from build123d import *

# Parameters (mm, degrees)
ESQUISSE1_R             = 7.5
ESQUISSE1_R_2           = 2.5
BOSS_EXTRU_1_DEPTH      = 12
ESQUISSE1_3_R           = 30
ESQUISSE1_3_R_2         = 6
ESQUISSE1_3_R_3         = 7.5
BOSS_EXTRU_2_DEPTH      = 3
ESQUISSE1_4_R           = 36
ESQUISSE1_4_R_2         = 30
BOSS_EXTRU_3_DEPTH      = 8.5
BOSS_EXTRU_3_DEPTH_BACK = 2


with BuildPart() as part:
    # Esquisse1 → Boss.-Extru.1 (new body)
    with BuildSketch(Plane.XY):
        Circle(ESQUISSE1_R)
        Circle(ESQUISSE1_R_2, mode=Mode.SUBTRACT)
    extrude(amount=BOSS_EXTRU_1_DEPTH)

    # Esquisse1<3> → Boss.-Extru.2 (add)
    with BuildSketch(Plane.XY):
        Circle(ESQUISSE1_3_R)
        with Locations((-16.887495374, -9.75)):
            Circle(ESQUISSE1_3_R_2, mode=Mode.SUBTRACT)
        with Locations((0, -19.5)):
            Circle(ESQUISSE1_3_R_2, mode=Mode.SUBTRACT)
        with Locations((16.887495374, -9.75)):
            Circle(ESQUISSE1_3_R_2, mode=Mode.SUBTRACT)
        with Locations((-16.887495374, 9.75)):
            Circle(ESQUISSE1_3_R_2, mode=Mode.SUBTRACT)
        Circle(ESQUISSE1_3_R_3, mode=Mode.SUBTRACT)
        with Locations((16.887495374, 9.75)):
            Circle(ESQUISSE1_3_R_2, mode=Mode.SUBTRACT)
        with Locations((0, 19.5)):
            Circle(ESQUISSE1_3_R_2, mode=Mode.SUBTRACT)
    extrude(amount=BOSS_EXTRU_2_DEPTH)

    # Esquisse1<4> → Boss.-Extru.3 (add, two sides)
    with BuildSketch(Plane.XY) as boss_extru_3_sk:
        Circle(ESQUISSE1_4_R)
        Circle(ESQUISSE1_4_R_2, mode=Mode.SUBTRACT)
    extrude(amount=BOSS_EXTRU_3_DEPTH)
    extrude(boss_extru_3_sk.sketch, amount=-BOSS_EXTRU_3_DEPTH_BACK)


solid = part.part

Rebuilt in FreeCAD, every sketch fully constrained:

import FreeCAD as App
import Part
import Sketcher

doc = App.newDocument("Part")
body = doc.addObject("PartDesign::Body", "Body")

sketch1 = body.newObject("Sketcher::SketchObject", "Sketch")
sketch1.AttachmentSupport = (doc.getObject("XY_Plane"), [""])
sketch1.MapMode = "FlatFace"
sketch1.addGeometry(Part.Circle(App.Vector(0, 0, 0), App.Vector(0, 0, 1), 7.5), False)
sketch1.addGeometry(Part.Circle(App.Vector(0, 0, 0), App.Vector(0, 0, 1), 2.5), False)
sketch1.addConstraint(Sketcher.Constraint("Coincident", 0, 3, -1, 1))
sketch1.addConstraint(Sketcher.Constraint("Coincident", 1, 3, -1, 1))
sketch1.addConstraint(Sketcher.Constraint("Diameter", 0, 15.0))
sketch1.addConstraint(Sketcher.Constraint("Diameter", 1, 5.0))
pad1 = body.newObject("PartDesign::Pad", "Pad")
pad1.Profile = sketch1
pad1.Length = 12

sketch2 = body.newObject("Sketcher::SketchObject", "Sketch001")
sketch2.AttachmentSupport = (doc.getObject("XY_Plane"), [""])
sketch2.MapMode = "FlatFace"
sketch2.addGeometry(Part.Circle(App.Vector(0, 0, 0), App.Vector(0, 0, 1), 30), False)
sketch2.addGeometry(Part.Circle(App.Vector(-17, -10, 0), App.Vector(0, 0, 1), 6), False)
sketch2.addGeometry(Part.Circle(App.Vector(0, -20, 0), App.Vector(0, 0, 1), 6), False)
sketch2.addGeometry(Part.Circle(App.Vector(17, -10, 0), App.Vector(0, 0, 1), 6), False)
sketch2.addGeometry(Part.Circle(App.Vector(-17, 10, 0), App.Vector(0, 0, 1), 6), False)
sketch2.addGeometry(Part.Circle(App.Vector(0, 0, 0), App.Vector(0, 0, 1), 8), False)
sketch2.addGeometry(Part.Circle(App.Vector(17, 10, 0), App.Vector(0, 0, 1), 6), False)
sketch2.addGeometry(Part.Circle(App.Vector(0, 20, 0), App.Vector(0, 0, 1), 6), False)
sketch2.addConstraint(Sketcher.Constraint("Coincident", 0, 3, -1, 1))
sketch2.addConstraint(Sketcher.Constraint("Coincident", 5, 3, -1, 1))
sketch2.addConstraint(Sketcher.Constraint("Equal", 1, 2))
sketch2.addConstraint(Sketcher.Constraint("Equal", 2, 3))
sketch2.addConstraint(Sketcher.Constraint("Equal", 3, 4))
sketch2.addConstraint(Sketcher.Constraint("Equal", 4, 6))
sketch2.addConstraint(Sketcher.Constraint("Equal", 6, 7))
sketch2.addConstraint(Sketcher.Constraint("Symmetric", 3, 3, 4, 3, -1, 1))
sketch2.addConstraint(Sketcher.Constraint("Symmetric", 1, 3, 6, 3, -1, 1))
sketch2.addConstraint(Sketcher.Constraint("Symmetric", 2, 3, 7, 3, -1, 1))
sketch2.addConstraint(Sketcher.Constraint("Symmetric", 1, 3, 3, 3, -2))
sketch2.addConstraint(Sketcher.Constraint("PointOnObject", 2, 3, -2))
sketch2.addConstraint(Sketcher.Constraint("Diameter", 0, 60.0))
sketch2.addConstraint(Sketcher.Constraint("Diameter", 1, 12.0))
sketch2.addConstraint(Sketcher.Constraint("Diameter", 5, 15.0))
sketch2.addConstraint(Sketcher.Constraint("DistanceY", 2, 3, -1, 1, 19.5))
sketch2.addConstraint(Sketcher.Constraint("DistanceY", 1, 3, 4, 3, 19.5))
sketch2.addConstraint(Sketcher.Constraint("DistanceX", 1, 3, 3, 3, 33.774991))
pad2 = body.newObject("PartDesign::Pad", "Pad001")
pad2.Profile = sketch2
pad2.Length = 3

sketch3 = body.newObject("Sketcher::SketchObject", "Sketch002")
sketch3.AttachmentSupport = (doc.getObject("XY_Plane"), [""])
sketch3.MapMode = "FlatFace"
sketch3.addGeometry(Part.Circle(App.Vector(0, 0, 0), App.Vector(0, 0, 1), 36), False)
sketch3.addGeometry(Part.Circle(App.Vector(0, 0, 0), App.Vector(0, 0, 1), 30), False)
sketch3.addConstraint(Sketcher.Constraint("Coincident", 0, 3, -1, 1))
sketch3.addConstraint(Sketcher.Constraint("Coincident", 1, 3, -1, 1))
sketch3.addConstraint(Sketcher.Constraint("Diameter", 0, 72.0))
sketch3.addConstraint(Sketcher.Constraint("Diameter", 1, 60.0))
pad3 = body.newObject("PartDesign::Pad", "Pad002")
pad3.Profile = sketch3
pad3.Type = "TwoLengths"
pad3.Length = 8.5
pad3.Length2 = 2

doc.recompute()
